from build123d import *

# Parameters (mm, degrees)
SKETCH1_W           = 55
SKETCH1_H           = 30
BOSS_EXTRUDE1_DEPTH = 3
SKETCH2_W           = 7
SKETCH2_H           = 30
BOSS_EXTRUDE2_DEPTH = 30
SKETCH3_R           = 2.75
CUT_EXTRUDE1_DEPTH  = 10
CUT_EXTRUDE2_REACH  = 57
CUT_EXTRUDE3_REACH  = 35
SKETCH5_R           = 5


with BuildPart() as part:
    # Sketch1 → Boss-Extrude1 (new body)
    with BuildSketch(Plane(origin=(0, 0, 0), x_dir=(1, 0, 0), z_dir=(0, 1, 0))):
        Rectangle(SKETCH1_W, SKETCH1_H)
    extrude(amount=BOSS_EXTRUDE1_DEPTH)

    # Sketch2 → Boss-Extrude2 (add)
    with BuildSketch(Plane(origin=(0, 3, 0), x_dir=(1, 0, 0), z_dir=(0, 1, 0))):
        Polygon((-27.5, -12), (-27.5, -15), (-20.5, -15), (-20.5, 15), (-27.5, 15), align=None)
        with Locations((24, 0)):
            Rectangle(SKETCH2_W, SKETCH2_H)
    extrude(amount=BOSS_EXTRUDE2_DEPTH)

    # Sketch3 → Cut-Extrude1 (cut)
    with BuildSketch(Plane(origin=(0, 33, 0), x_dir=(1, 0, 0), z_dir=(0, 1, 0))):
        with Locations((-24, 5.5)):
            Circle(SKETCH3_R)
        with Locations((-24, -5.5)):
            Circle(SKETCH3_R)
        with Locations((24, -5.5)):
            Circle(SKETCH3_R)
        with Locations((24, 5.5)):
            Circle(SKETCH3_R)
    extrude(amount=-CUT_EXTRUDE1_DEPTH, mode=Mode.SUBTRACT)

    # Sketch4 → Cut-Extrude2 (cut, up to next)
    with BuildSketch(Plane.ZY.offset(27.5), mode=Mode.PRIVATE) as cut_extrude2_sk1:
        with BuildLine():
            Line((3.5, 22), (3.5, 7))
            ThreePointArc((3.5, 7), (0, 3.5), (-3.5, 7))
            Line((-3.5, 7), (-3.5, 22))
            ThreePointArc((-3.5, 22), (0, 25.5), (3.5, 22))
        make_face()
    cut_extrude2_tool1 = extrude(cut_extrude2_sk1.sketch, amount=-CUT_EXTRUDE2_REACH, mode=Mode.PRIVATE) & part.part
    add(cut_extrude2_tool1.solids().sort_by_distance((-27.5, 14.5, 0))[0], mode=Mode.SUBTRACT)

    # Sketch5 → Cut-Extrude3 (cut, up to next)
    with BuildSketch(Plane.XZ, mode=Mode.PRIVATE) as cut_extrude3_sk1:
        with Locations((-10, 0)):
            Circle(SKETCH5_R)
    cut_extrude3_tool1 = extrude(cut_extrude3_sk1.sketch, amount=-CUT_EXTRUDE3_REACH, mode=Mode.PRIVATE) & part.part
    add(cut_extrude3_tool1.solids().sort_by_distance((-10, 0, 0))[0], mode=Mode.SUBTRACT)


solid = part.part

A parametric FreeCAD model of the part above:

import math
import FreeCAD as App
import Part
import Sketcher

V = App.Vector
Q = App.Units.Quantity

doc = App.newDocument("Part")
body = doc.addObject("PartDesign::Body", "Body")

sketch1 = doc.addObject("Sketcher::SketchObject", "Sketch")
body.addObject(sketch1)
sketch1.AttachmentSupport = (doc.XZ_Plane, [""])
sketch1.MapMode = "FlatFace"
sketch1.addGeometry(Part.LineSegment(V(-27.5, -15, 0), V(-27.5, 15, 0)), False)
sketch1.addGeometry(Part.LineSegment(V(-27.5, 15, 0), V(27.5, 15, 0)), False)
sketch1.addGeometry(Part.LineSegment(V(27.5, 15, 0), V(27.5, -15, 0)), False)
sketch1.addGeometry(Part.LineSegment(V(27.5, -15, 0), V(-27.5, -15, 0)), False)
sketch1.addConstraint(Sketcher.Constraint("Coincident", 0, 2, 1, 1))
sketch1.addConstraint(Sketcher.Constraint("Coincident", 1, 2, 2, 1))
sketch1.addConstraint(Sketcher.Constraint("Coincident", 2, 2, 3, 1))
sketch1.addConstraint(Sketcher.Constraint("Coincident", 3, 2, 0, 1))
sketch1.addConstraint(Sketcher.Constraint("Vertical", 0))
sketch1.addConstraint(Sketcher.Constraint("Horizontal", 1))
sketch1.addConstraint(Sketcher.Constraint("Vertical", 2))
sketch1.addConstraint(Sketcher.Constraint("Horizontal", 3))
sketch1.addConstraint(Sketcher.Constraint("Symmetric", 0, 2, 2, 2, -1, 1))
sketch1.addConstraint(Sketcher.Constraint("DistanceX", 1, 1, 1, 2, Q("55 mm")))
sketch1.addConstraint(Sketcher.Constraint("DistanceY", 0, 1, 0, 2, Q("30 mm")))
pad1 = doc.addObject("PartDesign::Pad", "Pad")
body.addObject(pad1)
pad1.Profile = sketch1
pad1.Length = 3
pad1.Reversed = True

sketch2 = doc.addObject("Sketcher::SketchObject", "Sketch001")
body.addObject(sketch2)
sketch2.AttachmentSupport = (doc.XZ_Plane, [""])
sketch2.MapMode = "FlatFace"
sketch2.AttachmentOffset = App.Placement(V(0, 0, -3), App.Rotation())
sketch2.addGeometry(Part.LineSegment(V(-27.5, 15, 0), V(-20.5, 15, 0)), False)
sketch2.addGeometry(Part.LineSegment(V(-20.5, 15, 0), V(-20.5, -15, 0)), False)
sketch2.addGeometry(Part.LineSegment(V(-20.5, -15, 0), V(-27.5, -15, 0)), False)
sketch2.addGeometry(Part.LineSegment(V(-27.5, -15, 0), V(-27.5, 15, 0)), False)
sketch2.addGeometry(Part.LineSegment(V(20.5, -15, 0), V(20.5, 15, 0)), False)
sketch2.addGeometry(Part.LineSegment(V(20.5, 15, 0), V(27.5, 15, 0)), False)
sketch2.addGeometry(Part.LineSegment(V(27.5, 15, 0), V(27.5, -15, 0)), False)
sketch2.addGeometry(Part.LineSegment(V(27.5, -15, 0), V(20.5, -15, 0)), False)
sketch2.addConstraint(Sketcher.Constraint("Coincident", 0, 2, 1, 1))
sketch2.addConstraint(Sketcher.Constraint("Coincident", 1, 2, 2, 1))
sketch2.addConstraint(Sketcher.Constraint("Coincident", 2, 2, 3, 1))
sketch2.addConstraint(Sketcher.Constraint("Coincident", 3, 2, 0, 1))
sketch2.addConstraint(Sketcher.Constraint("Coincident", 4, 2, 5, 1))
sketch2.addConstraint(Sketcher.Constraint("Coincident", 5, 2, 6, 1))
sketch2.addConstraint(Sketcher.Constraint("Coincident", 6, 2, 7, 1))
sketch2.addConstraint(Sketcher.Constraint("Coincident", 7, 2, 4, 1))
sketch2.addConstraint(Sketcher.Constraint("Horizontal", 0))
sketch2.addConstraint(Sketcher.Constraint("Vertical", 1))
sketch2.addConstraint(Sketcher.Constraint("Horizontal", 2))
sketch2.addConstraint(Sketcher.Constraint("Vertical", 3))
sketch2.addConstraint(Sketcher.Constraint("Vertical", 4))
sketch2.addConstraint(Sketcher.Constraint("Horizontal", 5))
sketch2.addConstraint(Sketcher.Constraint("Vertical", 6))
sketch2.addConstraint(Sketcher.Constraint("Horizontal", 7))
sketch2.addConstraint(Sketcher.Constraint("Symmetric", 1, 2, 4, 2, -1, 1))
sketch2.addConstraint(Sketcher.Constraint("Symmetric", 3, 2, 6, 2, -1, 1))
sketch2.addConstraint(Sketcher.Constraint("Horizontal", 3, 2, 4, 2))
sketch2.addConstraint(Sketcher.Constraint("DistanceX", 0, 1, 0, 2, Q("7 mm")))
sketch2.addConstraint(Sketcher.Constraint("DistanceY", 1, 2, 1, 1, Q("30 mm")))
sketch2.addConstraint(Sketcher.Constraint("DistanceX", 0, 2, 4, 2, Q("41 mm")))
pad2 = doc.addObject("PartDesign::Pad", "Pad001")
body.addObject(pad2)
pad2.Profile = sketch2
pad2.Length = 30
pad2.Reversed = True

sketch3 = doc.addObject("Sketcher::SketchObject", "Sketch002")
body.addObject(sketch3)
sketch3.AttachmentSupport = (doc.XZ_Plane, [""])
sketch3.MapMode = "FlatFace"
sketch3.AttachmentOffset = App.Placement(V(0, 0, -33), App.Rotation())
sketch3.addGeometry(Part.Circle(V(-24, -5.5, 0), V(0, 0, 1), 2.75), False)
sketch3.addGeometry(Part.Circle(V(-24, 5.5, 0), V(0, 0, 1), 2.75), False)
sketch3.addGeometry(Part.Circle(V(24, 5.5, 0), V(0, 0, 1), 2.75), False)
sketch3.addGeometry(Part.Circle(V(24, -5.5, 0), V(0, 0, 1), 2.75), False)
sketch3.addConstraint(Sketcher.Constraint("Equal", 0, 1))
sketch3.addConstraint(Sketcher.Constraint("Equal", 1, 2))
sketch3.addConstraint(Sketcher.Constraint("Equal", 2, 3))
sketch3.addConstraint(Sketcher.Constraint("Symmetric", 0, 3, 2, 3, -1, 1))
sketch3.addConstraint(Sketcher.Constraint("Symmetric", 1, 3, 3, 3, -1, 1))
sketch3.addConstraint(Sketcher.Constraint("Symmetric", 1, 3, 2, 3, -2))
sketch3.addConstraint(Sketcher.Constraint("Diameter", 0, Q("5.5 mm")))
sketch3.addConstraint(Sketcher.Constraint("DistanceX", 0, 3, -1, 1, Q("24 mm")))
sketch3.addConstraint(Sketcher.Constraint("DistanceY", 0, 3, 1, 3, Q("11 mm")))
pocket1 = doc.addObject("PartDesign::Pocket", "Pocket")
body.addObject(pocket1)
pocket1.Profile = sketch3
pocket1.Length = 10
pocket1.Reversed = True

sketch4 = doc.addObject("Sketcher::SketchObject", "Sketch003")
body.addObject(sketch4)
sketch4.AttachmentSupport = (doc.YZ_Plane, [""])
sketch4.MapMode = "FlatFace"
sketch4.AttachmentOffset = App.Placement(V(0, 0, -27.5), App.Rotation())
sketch4.addGeometry(Part.LineSegment(V(7, 3.5, 0), V(22, 3.5, 0)), False)
sketch4.addGeometry(Part.ArcOfCircle(Part.Circle(V(22, 0, 0), V(0, 0, 1), 3.5), math.radians(-90), math.radians(90)), False)
sketch4.addGeometry(Part.LineSegment(V(22, -3.5, 0), V(7, -3.5, 0)), False)
sketch4.addGeometry(Part.ArcOfCircle(Part.Circle(V(7, 0, 0), V(0, 0, 1), 3.5), math.radians(90), math.radians(270)), False)
sketch4.addConstraint(Sketcher.Constraint("Tangent", 0, 2, 1, 2))
sketch4.addConstraint(Sketcher.Constraint("Tangent", 1, 1, 2, 1))
sketch4.addConstraint(Sketcher.Constraint("Tangent", 2, 2, 3, 2))
sketch4.addConstraint(Sketcher.Constraint("Tangent", 3, 1, 0, 1))
sketch4.addConstraint(Sketcher.Constraint("Horizontal", 0))
sketch4.addConstraint(Sketcher.Constraint("Horizontal", 2))
sketch4.addConstraint(Sketcher.Constraint("PointOnObject", 1, 3, -1))
sketch4.addConstraint(Sketcher.Constraint("Radius", 1, Q("3.5 mm")))
sketch4.addConstraint(Sketcher.Constraint("DistanceX", 0, 1, 0, 2, Q("15 mm")))
sketch4.addConstraint(Sketcher.Constraint("DistanceX", -1, 1, 1, 3, Q("22 mm")))
pocket2 = doc.addObject("PartDesign::Pocket", "Pocket001")
body.addObject(pocket2)
pocket2.Profile = sketch4
pocket2.Type = "UpToFirst"
pocket2.Reversed = True

sketch5 = doc.addObject("Sketcher::SketchObject", "Sketch004")
body.addObject(sketch5)
sketch5.AttachmentSupport = (doc.XZ_Plane, [""])
sketch5.MapMode = "FlatFace"
sketch5.addGeometry(Part.Circle(V(-10, 0, 0), V(0, 0, 1), 5), False)
sketch5.addConstraint(Sketcher.Constraint("PointOnObject", 0, 3, -1))
sketch5.addConstraint(Sketcher.Constraint("Diameter", 0, Q("10 mm")))
sketch5.addConstraint(Sketcher.Constraint("DistanceX", 0, 3, -1, 1, Q("10 mm")))
pocket3 = doc.addObject("PartDesign::Pocket", "Pocket002")
body.addObject(pocket3)
pocket3.Profile = sketch5
pocket3.Type = "UpToFirst"

doc.recompute()
